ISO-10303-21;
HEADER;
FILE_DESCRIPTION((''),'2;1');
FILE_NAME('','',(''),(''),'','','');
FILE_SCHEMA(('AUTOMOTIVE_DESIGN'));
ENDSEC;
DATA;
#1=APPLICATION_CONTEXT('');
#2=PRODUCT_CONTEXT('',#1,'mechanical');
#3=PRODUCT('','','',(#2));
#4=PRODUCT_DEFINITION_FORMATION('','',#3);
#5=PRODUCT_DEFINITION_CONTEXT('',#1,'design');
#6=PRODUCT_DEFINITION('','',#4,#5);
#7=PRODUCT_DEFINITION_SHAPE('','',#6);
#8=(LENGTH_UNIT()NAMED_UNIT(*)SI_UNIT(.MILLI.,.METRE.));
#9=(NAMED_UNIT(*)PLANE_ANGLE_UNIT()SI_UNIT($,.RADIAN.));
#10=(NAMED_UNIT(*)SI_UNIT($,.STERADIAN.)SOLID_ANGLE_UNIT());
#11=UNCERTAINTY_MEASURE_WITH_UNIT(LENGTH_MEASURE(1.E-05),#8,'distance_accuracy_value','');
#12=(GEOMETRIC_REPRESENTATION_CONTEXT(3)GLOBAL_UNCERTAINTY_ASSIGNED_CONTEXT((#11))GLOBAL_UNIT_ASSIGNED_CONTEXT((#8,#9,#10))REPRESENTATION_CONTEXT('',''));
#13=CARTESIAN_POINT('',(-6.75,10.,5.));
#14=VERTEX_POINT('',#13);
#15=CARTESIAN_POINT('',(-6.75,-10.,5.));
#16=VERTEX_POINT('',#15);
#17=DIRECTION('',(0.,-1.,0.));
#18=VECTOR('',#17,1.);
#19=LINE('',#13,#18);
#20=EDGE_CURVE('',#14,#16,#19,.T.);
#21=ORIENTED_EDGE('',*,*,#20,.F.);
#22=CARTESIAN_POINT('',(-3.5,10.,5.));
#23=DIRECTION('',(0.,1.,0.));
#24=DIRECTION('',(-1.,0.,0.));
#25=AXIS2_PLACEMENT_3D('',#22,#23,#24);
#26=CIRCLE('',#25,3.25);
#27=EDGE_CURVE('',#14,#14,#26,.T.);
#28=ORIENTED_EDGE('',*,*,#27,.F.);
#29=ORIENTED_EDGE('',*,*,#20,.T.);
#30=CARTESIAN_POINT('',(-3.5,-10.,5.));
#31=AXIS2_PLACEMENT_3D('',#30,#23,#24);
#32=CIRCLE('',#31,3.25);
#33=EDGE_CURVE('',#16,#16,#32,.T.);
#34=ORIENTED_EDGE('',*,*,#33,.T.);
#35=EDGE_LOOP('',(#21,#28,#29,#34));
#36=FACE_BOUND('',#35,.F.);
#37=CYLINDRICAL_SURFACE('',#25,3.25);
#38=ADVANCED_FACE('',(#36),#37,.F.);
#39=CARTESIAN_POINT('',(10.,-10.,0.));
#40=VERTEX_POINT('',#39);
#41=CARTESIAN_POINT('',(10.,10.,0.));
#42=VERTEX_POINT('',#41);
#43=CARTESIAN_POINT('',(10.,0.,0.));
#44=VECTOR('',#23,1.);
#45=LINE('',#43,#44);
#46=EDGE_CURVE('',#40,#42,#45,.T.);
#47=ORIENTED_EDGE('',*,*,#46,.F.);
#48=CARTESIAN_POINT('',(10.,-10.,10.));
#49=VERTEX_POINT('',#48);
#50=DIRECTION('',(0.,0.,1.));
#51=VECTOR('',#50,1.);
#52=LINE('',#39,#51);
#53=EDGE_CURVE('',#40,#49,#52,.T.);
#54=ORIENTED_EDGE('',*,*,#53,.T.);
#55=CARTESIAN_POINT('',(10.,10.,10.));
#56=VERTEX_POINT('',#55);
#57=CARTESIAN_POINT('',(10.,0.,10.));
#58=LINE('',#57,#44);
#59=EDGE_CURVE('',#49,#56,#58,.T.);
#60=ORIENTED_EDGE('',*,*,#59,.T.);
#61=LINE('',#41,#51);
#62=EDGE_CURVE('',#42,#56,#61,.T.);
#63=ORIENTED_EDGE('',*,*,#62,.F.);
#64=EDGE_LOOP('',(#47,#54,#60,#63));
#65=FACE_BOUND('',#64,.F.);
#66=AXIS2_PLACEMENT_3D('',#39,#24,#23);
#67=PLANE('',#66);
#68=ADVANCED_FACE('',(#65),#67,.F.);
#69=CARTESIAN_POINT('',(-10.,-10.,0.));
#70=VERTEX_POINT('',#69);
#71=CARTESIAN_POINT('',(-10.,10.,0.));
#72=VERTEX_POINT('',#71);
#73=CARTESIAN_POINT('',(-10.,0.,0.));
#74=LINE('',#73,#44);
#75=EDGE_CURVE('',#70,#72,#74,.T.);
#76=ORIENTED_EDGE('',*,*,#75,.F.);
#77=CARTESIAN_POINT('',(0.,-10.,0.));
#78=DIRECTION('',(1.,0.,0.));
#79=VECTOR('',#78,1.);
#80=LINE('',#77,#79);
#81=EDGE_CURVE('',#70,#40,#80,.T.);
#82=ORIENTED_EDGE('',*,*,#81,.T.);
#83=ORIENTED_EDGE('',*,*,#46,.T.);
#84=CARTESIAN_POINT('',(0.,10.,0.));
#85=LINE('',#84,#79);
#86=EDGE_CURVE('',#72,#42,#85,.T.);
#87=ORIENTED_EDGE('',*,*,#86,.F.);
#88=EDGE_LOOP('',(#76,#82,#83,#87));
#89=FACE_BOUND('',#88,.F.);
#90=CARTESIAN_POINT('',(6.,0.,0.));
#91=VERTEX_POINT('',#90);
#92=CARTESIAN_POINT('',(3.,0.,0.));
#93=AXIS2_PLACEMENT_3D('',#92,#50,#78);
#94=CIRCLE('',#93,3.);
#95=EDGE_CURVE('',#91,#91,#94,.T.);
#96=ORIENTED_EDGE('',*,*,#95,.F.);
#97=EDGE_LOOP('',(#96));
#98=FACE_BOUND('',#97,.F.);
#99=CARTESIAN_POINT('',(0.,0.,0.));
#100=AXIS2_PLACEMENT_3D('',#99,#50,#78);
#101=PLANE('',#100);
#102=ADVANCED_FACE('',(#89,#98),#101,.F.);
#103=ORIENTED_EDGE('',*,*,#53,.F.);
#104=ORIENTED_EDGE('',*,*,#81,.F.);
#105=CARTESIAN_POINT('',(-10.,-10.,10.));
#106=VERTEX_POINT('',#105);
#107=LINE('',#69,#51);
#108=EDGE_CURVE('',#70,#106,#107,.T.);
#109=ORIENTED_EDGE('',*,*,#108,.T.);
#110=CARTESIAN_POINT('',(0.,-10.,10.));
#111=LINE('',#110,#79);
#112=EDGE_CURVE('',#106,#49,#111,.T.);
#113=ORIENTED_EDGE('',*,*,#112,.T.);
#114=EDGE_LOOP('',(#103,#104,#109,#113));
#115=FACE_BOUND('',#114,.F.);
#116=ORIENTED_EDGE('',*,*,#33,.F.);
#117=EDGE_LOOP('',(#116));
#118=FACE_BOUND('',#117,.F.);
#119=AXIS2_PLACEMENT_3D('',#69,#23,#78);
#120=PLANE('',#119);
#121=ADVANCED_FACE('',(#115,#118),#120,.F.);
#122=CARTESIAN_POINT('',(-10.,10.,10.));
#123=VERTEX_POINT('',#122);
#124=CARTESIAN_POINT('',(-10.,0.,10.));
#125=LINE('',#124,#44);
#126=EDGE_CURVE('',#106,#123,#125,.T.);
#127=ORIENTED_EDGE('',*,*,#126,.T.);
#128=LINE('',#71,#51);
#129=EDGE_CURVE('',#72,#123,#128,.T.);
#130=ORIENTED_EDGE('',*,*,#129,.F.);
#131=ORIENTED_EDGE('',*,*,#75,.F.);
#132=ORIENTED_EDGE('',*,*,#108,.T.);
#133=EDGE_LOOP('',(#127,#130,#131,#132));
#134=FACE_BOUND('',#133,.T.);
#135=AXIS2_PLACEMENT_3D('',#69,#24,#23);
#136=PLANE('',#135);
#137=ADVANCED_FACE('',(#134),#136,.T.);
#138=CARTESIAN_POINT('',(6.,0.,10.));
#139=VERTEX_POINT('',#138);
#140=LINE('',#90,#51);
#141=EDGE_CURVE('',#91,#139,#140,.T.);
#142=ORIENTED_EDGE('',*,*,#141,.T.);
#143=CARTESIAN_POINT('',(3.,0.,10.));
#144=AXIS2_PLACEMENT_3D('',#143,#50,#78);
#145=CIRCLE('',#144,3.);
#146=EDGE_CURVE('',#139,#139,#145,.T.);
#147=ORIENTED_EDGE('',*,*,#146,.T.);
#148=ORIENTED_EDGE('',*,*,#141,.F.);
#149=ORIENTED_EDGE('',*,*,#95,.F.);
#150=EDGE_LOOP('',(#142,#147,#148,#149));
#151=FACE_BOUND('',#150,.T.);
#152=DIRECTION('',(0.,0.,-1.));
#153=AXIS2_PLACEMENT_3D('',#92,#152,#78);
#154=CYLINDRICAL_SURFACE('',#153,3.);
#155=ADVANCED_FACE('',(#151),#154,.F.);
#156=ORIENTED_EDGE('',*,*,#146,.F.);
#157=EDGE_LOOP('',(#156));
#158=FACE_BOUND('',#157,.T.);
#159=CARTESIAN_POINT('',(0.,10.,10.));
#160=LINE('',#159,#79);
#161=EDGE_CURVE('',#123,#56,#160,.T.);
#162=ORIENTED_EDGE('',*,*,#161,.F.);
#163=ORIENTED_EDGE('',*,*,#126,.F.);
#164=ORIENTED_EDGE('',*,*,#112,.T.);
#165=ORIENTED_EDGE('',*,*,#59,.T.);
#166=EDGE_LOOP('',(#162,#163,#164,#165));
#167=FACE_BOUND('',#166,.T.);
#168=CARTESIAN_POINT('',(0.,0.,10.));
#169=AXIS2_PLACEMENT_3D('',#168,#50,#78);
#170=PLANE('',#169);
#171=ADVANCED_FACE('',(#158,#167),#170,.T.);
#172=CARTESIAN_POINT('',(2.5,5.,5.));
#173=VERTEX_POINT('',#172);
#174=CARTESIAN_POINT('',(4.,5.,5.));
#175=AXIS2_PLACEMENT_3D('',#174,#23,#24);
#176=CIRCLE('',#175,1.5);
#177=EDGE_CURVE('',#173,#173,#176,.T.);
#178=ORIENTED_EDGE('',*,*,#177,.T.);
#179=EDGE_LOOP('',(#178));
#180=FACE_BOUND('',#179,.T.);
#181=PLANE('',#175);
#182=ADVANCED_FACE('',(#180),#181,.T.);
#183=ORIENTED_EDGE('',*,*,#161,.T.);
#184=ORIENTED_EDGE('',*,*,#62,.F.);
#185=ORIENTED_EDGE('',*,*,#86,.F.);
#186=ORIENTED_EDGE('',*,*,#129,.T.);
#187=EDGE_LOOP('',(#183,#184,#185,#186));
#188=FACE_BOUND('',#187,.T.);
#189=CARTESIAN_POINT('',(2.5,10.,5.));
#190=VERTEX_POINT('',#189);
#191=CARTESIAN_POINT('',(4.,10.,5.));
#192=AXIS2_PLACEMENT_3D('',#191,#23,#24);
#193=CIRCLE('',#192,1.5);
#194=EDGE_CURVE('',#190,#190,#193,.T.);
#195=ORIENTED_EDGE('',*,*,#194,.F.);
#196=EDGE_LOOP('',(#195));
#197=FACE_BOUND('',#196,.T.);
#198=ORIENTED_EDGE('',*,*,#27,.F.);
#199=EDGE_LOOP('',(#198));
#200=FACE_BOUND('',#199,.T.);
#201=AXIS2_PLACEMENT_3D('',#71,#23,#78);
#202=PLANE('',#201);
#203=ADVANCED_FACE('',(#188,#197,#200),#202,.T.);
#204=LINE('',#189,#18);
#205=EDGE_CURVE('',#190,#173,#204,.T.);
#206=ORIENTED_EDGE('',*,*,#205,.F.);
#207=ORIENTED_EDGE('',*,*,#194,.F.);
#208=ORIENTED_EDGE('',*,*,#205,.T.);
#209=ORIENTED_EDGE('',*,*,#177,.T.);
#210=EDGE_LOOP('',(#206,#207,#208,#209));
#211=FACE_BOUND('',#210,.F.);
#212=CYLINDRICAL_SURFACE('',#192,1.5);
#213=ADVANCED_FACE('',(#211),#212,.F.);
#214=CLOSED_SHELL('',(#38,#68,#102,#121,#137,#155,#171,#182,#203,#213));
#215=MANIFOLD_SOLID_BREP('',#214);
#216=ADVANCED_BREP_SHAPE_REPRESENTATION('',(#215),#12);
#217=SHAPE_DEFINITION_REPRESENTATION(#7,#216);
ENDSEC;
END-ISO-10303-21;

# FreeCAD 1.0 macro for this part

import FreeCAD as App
import Part
import Sketcher

V = App.Vector


def add_polygon(sketch, points):
    """Adds a closed chain of lines whose ends are joined by coincident constraints."""
    first, n = sketch.GeometryCount, len(points)
    for a, b in zip(points, points[1:] + points[:1]):
        sketch.addGeometry(Part.LineSegment(App.Vector(*a, 0), App.Vector(*b, 0)), False)
    for i in range(n):
        sketch.addConstraint(Sketcher.Constraint("Coincident", first + i, 2, first + (i + 1) % n, 1))

doc = App.newDocument("Part")
params = doc.addObject("Spreadsheet::Sheet", "Params")
for row, (alias, value) in enumerate([
    ("sketch1_diameter", "6 mm"),
    ("sketch1_width", "20 mm"),
    ("pad1_length", "10 mm"),
    ("sketch2_diameter", "6.5 mm"),
    ("sketch3_diameter", "3 mm"),
    ("pocket2_length", "5 mm"),
], start=1):
    params.set(f"A{row}", alias)
    params.set(f"B{row}", "=" + value)
    params.setAlias(f"B{row}", alias)

body = doc.addObject("PartDesign::Body", "Body")

sketch1 = body.newObject("Sketcher::SketchObject", "Sketch")
sketch1.AttachmentSupport = (doc.getObject("XY_Plane"), [""])
sketch1.MapMode = "FlatFace"
add_polygon(sketch1, [(-10, 10), (-10, -10), (10, -10), (10, 10)])
sketch1.addGeometry(Part.Circle(V(3, 0, 0), V(0, 0, 1), 3), False)
sketch1.addConstraint([
    Sketcher.Constraint("Vertical", 0),
    Sketcher.Constraint("Horizontal", 1),
    Sketcher.Constraint("Vertical", 2),
    Sketcher.Constraint("Horizontal", 3),
    Sketcher.Constraint("Symmetric", 0, 2, 2, 2, -1, 1),
    Sketcher.Constraint("PointOnObject", 4, 3, -1),
    Sketcher.Constraint("Equal", 3, 0),
    Sketcher.Constraint("Diameter", 4, 6.0),
    Sketcher.Constraint("DistanceX", 1, 1, 1, 2, 20.0),
    Sketcher.Constraint("DistanceX", -1, 1, 4, 3, 3.0),
])
sketch1.setExpression("Constraints[11]", "Params.sketch1_diameter")
sketch1.setExpression("Constraints[12]", "Params.sketch1_width")
pad1 = body.newObject("PartDesign::Pad", "Pad")
pad1.Profile = sketch1
pad1.setExpression("Length", "Params.pad1_length")

sketch2 = body.newObject("Sketcher::SketchObject", "Sketch001")
sketch2.AttachmentSupport = (doc.getObject("XZ_Plane"), [""])
sketch2.MapMode = "FlatFace"
sketch2.AttachmentOffset = App.Placement(V(0, 0, -10), App.Rotation())
sketch2.addGeometry(Part.Circle(V(-3.5, 5, 0), V(0, 0, 1), 3.2), False)
sketch2.addConstraint([
    Sketcher.Constraint("Diameter", 0, 6.5),
    Sketcher.Constraint("DistanceY", -1, 1, 0, 3, 5.0),
    Sketcher.Constraint("DistanceX", 0, 3, -1, 1, 3.5),
])
sketch2.setExpression("Constraints[0]", "Params.sketch2_diameter")
pocket1 = body.newObject("PartDesign::Pocket", "Pocket")
pocket1.Profile = sketch2
pocket1.Type = "ThroughAll"
pocket1.Reversed = True

sketch3 = body.newObject("Sketcher::SketchObject", "Sketch002")
sketch3.AttachmentSupport = (doc.getObject("XZ_Plane"), [""])
sketch3.MapMode = "FlatFace"
sketch3.AttachmentOffset = App.Placement(V(0, 0, -10), App.Rotation())
sketch3.addGeometry(Part.Circle(V(4, 5, 0), V(0, 0, 1), 1.5), False)
sketch3.addConstraint([
    Sketcher.Constraint("Diameter", 0, 3.0),
    Sketcher.Constraint("DistanceX", -1, 1, 0, 3, 4.0),
    Sketcher.Constraint("DistanceY", -1, 1, 0, 3, 5.0),
])
sketch3.setExpression("Constraints[0]", "Params.sketch3_diameter")
pocket2 = body.newObject("PartDesign::Pocket", "Pocket001")
pocket2.Profile = sketch3
pocket2.setExpression("Length", "Params.pocket2_length")
pocket2.Reversed = True

doc.recompute()
